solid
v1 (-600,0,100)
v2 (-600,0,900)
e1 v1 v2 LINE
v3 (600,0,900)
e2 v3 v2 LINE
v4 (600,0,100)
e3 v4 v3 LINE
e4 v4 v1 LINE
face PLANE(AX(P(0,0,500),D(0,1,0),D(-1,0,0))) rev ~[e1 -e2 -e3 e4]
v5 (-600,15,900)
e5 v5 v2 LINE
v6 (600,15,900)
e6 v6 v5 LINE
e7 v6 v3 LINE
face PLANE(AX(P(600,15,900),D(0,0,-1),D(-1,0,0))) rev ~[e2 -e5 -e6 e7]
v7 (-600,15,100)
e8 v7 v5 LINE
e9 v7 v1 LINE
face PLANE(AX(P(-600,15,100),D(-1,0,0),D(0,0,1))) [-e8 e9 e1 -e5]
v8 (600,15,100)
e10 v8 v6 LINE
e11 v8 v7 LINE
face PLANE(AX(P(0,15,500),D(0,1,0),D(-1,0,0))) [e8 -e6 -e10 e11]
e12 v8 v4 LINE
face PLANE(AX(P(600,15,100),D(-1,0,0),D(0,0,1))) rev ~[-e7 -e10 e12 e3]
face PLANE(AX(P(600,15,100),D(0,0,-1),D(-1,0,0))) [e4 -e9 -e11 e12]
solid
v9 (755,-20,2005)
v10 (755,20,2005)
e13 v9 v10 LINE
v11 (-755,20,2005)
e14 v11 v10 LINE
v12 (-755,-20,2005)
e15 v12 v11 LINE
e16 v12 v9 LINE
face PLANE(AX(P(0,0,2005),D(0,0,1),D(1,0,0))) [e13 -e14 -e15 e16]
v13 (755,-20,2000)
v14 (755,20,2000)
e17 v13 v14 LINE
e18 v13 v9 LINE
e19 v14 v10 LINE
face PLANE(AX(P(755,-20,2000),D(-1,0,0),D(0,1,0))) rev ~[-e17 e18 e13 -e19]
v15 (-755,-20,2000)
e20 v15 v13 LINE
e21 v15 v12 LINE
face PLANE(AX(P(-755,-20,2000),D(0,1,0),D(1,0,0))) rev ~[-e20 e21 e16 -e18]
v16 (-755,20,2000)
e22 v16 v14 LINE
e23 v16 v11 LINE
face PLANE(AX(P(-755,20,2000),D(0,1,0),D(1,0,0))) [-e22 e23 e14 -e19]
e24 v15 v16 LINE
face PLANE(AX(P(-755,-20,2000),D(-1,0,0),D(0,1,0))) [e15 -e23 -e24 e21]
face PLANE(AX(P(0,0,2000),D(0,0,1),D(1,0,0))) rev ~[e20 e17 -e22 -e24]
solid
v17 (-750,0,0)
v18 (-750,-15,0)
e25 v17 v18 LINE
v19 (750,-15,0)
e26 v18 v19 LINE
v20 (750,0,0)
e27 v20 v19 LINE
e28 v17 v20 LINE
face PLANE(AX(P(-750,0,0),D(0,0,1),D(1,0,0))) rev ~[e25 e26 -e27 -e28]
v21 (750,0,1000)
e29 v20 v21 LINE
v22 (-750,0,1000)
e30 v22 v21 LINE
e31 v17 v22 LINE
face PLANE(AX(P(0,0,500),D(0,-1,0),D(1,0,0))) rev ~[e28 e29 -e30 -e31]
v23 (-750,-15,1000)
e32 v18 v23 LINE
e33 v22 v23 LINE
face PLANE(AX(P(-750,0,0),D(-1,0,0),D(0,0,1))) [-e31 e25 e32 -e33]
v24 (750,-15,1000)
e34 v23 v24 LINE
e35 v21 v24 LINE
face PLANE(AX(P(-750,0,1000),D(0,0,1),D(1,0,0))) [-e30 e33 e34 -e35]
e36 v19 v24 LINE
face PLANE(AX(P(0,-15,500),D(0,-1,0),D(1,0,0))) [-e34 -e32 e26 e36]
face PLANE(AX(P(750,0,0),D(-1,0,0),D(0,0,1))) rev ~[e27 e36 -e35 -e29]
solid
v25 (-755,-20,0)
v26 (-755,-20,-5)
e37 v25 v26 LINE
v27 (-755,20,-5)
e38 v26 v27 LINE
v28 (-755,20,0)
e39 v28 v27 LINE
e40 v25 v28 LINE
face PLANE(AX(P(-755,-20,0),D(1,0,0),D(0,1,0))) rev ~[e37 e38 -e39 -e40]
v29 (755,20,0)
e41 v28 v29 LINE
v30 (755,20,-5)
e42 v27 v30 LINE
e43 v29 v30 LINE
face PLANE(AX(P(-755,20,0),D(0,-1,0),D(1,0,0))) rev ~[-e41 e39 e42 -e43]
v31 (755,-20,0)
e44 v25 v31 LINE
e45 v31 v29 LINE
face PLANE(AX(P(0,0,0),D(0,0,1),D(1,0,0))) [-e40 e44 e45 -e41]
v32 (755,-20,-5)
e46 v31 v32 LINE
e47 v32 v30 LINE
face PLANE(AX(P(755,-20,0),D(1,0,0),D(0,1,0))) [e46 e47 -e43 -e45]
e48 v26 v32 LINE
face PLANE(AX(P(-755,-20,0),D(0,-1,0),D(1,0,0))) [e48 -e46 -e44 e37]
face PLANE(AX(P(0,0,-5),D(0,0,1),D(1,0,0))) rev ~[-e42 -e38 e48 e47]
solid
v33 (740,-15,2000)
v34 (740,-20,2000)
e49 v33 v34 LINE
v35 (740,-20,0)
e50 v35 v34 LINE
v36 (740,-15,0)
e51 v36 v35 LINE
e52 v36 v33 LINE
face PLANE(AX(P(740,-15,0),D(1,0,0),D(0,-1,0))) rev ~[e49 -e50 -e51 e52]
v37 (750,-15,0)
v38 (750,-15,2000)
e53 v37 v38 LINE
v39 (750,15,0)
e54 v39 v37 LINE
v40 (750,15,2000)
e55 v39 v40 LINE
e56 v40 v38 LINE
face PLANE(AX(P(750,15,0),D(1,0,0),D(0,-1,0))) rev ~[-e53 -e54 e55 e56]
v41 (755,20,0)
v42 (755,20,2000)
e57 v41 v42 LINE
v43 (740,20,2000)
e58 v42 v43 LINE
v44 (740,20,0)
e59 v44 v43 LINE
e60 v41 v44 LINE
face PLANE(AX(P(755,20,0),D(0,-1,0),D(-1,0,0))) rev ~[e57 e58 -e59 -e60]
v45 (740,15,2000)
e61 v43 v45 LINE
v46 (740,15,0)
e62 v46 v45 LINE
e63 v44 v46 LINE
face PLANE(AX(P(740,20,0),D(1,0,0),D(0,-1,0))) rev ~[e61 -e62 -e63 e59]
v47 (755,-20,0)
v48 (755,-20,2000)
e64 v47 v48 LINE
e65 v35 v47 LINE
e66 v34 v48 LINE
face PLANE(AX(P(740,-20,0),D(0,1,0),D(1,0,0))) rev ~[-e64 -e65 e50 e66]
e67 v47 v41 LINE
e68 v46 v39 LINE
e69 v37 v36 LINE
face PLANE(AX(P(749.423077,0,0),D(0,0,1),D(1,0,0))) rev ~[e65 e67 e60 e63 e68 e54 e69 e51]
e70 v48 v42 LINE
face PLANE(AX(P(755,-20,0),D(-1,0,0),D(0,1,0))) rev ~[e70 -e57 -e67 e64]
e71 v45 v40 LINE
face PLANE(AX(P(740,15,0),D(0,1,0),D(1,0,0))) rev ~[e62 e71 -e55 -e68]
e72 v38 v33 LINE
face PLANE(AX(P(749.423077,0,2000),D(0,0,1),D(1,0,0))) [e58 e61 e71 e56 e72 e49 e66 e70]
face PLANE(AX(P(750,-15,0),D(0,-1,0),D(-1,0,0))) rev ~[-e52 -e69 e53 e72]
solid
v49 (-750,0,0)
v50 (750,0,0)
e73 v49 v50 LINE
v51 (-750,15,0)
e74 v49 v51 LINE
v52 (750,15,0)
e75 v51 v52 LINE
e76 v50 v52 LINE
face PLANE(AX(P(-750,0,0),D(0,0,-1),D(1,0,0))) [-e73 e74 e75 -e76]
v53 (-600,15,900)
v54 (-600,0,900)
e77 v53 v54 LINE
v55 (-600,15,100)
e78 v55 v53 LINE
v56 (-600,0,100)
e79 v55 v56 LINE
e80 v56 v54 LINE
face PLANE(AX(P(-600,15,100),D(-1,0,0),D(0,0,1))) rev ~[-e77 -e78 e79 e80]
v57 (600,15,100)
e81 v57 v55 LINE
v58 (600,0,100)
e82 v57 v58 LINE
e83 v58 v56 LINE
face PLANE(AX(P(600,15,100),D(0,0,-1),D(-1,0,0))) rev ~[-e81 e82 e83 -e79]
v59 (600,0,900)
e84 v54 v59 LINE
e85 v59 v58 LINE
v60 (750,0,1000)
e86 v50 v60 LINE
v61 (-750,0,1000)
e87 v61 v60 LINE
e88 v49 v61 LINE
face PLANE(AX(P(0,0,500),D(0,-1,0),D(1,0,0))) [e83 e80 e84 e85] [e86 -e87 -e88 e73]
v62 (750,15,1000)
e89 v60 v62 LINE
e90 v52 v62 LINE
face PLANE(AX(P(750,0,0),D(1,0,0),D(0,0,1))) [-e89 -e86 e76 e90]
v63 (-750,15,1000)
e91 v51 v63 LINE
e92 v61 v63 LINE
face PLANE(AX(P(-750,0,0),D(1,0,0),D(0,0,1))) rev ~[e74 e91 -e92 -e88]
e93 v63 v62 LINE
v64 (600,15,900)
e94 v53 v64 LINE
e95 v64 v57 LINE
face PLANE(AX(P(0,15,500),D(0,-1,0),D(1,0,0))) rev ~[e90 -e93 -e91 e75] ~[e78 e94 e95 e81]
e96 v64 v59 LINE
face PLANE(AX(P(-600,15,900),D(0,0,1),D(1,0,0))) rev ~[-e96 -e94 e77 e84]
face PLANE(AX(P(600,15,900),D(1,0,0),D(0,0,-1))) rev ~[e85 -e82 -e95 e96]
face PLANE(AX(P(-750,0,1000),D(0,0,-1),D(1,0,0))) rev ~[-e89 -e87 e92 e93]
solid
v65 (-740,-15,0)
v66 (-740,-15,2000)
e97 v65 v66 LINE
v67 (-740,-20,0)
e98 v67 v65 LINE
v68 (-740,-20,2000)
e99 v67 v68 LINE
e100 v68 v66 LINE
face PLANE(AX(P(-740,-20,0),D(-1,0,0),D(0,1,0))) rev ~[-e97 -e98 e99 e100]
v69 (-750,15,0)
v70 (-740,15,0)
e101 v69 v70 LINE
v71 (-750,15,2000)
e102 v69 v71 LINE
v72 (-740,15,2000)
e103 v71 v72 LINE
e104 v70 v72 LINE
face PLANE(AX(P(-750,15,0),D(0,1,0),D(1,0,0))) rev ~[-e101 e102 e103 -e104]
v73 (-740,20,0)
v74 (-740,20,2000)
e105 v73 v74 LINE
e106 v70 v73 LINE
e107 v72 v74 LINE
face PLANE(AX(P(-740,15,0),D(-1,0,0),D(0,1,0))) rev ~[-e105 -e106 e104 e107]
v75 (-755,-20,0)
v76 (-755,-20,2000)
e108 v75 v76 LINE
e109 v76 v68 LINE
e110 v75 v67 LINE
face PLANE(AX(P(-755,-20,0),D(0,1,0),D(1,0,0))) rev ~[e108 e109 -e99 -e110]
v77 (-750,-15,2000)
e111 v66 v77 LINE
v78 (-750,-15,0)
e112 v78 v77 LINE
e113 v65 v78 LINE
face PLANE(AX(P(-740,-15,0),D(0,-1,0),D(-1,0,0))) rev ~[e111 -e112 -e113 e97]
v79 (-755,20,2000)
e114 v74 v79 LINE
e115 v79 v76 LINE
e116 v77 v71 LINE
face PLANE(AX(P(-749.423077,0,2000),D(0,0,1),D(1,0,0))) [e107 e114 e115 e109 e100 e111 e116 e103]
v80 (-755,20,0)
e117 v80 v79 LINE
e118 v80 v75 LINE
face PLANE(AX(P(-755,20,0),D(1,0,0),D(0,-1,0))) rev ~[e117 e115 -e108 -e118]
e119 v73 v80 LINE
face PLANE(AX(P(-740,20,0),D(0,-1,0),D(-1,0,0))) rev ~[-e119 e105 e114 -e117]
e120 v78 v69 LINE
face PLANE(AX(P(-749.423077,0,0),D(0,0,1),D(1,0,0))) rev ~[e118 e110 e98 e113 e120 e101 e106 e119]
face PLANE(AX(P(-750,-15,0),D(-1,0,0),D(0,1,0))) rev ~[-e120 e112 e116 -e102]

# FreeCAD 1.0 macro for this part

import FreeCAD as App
import Part
import Sketcher
Q = App.Units.Quantity


def add_polygon(sketch, points):
    """Adds a closed chain of lines whose ends are joined by coincident constraints."""
    first, n = sketch.GeometryCount, len(points)
    for a, b in zip(points, points[1:] + points[:1]):
        sketch.addGeometry(Part.LineSegment(App.Vector(*a, 0), App.Vector(*b, 0)), False)
    for i in range(n):
        sketch.addConstraint(Sketcher.Constraint("Coincident", first + i, 2, first + (i + 1) % n, 1))

doc = App.newDocument("Part")
body = doc.addObject("PartDesign::Body", "Body")
body.AllowCompound = True

sketch1 = body.newObject("Sketcher::SketchObject", "Sketch")
sketch1.AttachmentSupport = (doc.getObject("XY_Plane"), [""])
sketch1.MapMode = "FlatFace"
add_polygon(sketch1, [(-750, -15), (-750, 15), (-740, 15), (-740, 20), (-755, 20), (-755, -20), (-740, -20), (-740, -15)])
add_polygon(sketch1, [(750, -15), (740, -15), (740, -20), (755, -20), (755, 20), (740, 20), (740, 15), (750, 15)])
sketch1.addConstraint([
    Sketcher.Constraint("Vertical", 0),
    Sketcher.Constraint("Horizontal", 1),
    Sketcher.Constraint("Vertical", 2),
    Sketcher.Constraint("Horizontal", 3),
    Sketcher.Constraint("Vertical", 4),
    Sketcher.Constraint("Horizontal", 5),
    Sketcher.Constraint("Vertical", 6),
    Sketcher.Constraint("Horizontal", 7),
    Sketcher.Constraint("Horizontal", 8),
    Sketcher.Constraint("Vertical", 9),
    Sketcher.Constraint("Horizontal", 10),
    Sketcher.Constraint("Vertical", 11),
    Sketcher.Constraint("Horizontal", 12),
    Sketcher.Constraint("Vertical", 13),
    Sketcher.Constraint("Horizontal", 14),
    Sketcher.Constraint("Vertical", 15),
    Sketcher.Constraint("Symmetric", 1, 2, 8, 2, -1, 1),
    Sketcher.Constraint("Symmetric", 3, 2, 10, 2, -1, 1),
    Sketcher.Constraint("Symmetric", 5, 2, 12, 2, -1, 1),
    Sketcher.Constraint("Symmetric", 7, 2, 14, 2, -1, 1),
    Sketcher.Constraint("Symmetric", 6, 2, 8, 2, -2),
    Sketcher.Constraint("Horizontal", 5, 2, 9, 2),
    Sketcher.Constraint("DistanceX", 1, 1, 1, 2, Q("10 mm")),
    Sketcher.Constraint("DistanceX", 3, 2, 3, 1, Q("15 mm")),
    Sketcher.Constraint("DistanceY", 0, 1, 0, 2, Q("30 mm")),
    Sketcher.Constraint("DistanceY", 2, 1, 2, 2, Q("5 mm")),
    Sketcher.Constraint("DistanceX", 0, 2, -1, 1, Q("750 mm")),
])
pad1 = body.newObject("PartDesign::Pad", "Pad")
pad1.Profile = sketch1
pad1.Length = 2000
body2 = doc.addObject("PartDesign::Body", "Body001")

sketch2 = body2.newObject("Sketcher::SketchObject", "Sketch001")
sketch2.AttachmentSupport = (doc.getObject("XZ_Plane001"), [""])
sketch2.MapMode = "FlatFace"
add_polygon(sketch2, [(-750, 1000), (-750, 0), (750, 0), (750, 1000)])
sketch2.addConstraint([
    Sketcher.Constraint("Vertical", 0),
    Sketcher.Constraint("Horizontal", 1),
    Sketcher.Constraint("Vertical", 2),
    Sketcher.Constraint("Horizontal", 3),
    Sketcher.Constraint("Symmetric", 0, 2, 1, 2, -1, 1),
    Sketcher.Constraint("DistanceX", 1, 1, 1, 2, Q("1500 mm")),
    Sketcher.Constraint("DistanceY", 0, 2, 0, 1, Q("1000 mm")),
])
pad2 = body2.newObject("PartDesign::Pad", "Pad001")
pad2.Profile = sketch2
pad2.Length = 15
body3 = doc.addObject("PartDesign::Body", "Body002")

sketch3 = body3.newObject("Sketcher::SketchObject", "Sketch002")
sketch3.AttachmentSupport = (doc.getObject("XZ_Plane002"), [""])
sketch3.MapMode = "FlatFace"
add_polygon(sketch3, [(-750, 1000), (-750, 0), (750, 0), (750, 1000)])
sketch3.addConstraint([
    Sketcher.Constraint("Vertical", 0),
    Sketcher.Constraint("Horizontal", 1),
    Sketcher.Constraint("Vertical", 2),
    Sketcher.Constraint("Horizontal", 3),
    Sketcher.Constraint("Symmetric", 0, 2, 1, 2, -1, 1),
    Sketcher.Constraint("DistanceX", 1, 1, 1, 2, Q("1500 mm")),
    Sketcher.Constraint("DistanceY", 0, 2, 0, 1, Q("1000 mm")),
])
pad3 = body3.newObject("PartDesign::Pad", "Pad002")
pad3.Profile = sketch3
pad3.Length = 15
pad3.Reversed = True

sketch4 = body3.newObject("Sketcher::SketchObject", "Sketch003")
sketch4.AttachmentSupport = (doc.getObject("XZ_Plane002"), [""])
sketch4.MapMode = "FlatFace"
sketch4.AttachmentOffset = App.Placement(App.Vector(0, 0, -15), App.Rotation())
add_polygon(sketch4, [(600, 100), (-600, 100), (-600, 900), (600, 900)])
sketch4.addConstraint([
    Sketcher.Constraint("Horizontal", 0),
    Sketcher.Constraint("Vertical", 1),
    Sketcher.Constraint("Horizontal", 2),
    Sketcher.Constraint("Vertical", 3),
    Sketcher.Constraint("DistanceX", 0, 2, 0, 1, Q("1200 mm")),
    Sketcher.Constraint("DistanceY", 1, 1, 1, 2, Q("800 mm")),
    Sketcher.Constraint("DistanceX", 0, 2, -1, 1, Q("600 mm")),
    Sketcher.Constraint("DistanceY", -1, 1, 0, 2, Q("100 mm")),
])
pocket1 = body3.newObject("PartDesign::Pocket", "Pocket")
pocket1.Profile = sketch4
pocket1.Length = 15
pocket1.Reversed = True
body4 = doc.addObject("PartDesign::Body", "Body003")

sketch5 = body4.newObject("Sketcher::SketchObject", "Sketch004")
sketch5.AttachmentSupport = (doc.getObject("XY_Plane003"), [""])
sketch5.MapMode = "FlatFace"
sketch5.AttachmentOffset = App.Placement(App.Vector(0, 0, 2000), App.Rotation())
add_polygon(sketch5, [(-755, 20), (-755, -20), (755, -20), (755, 20)])
sketch5.addConstraint([
    Sketcher.Constraint("Vertical", 0),
    Sketcher.Constraint("Horizontal", 1),
    Sketcher.Constraint("Vertical", 2),
    Sketcher.Constraint("Horizontal", 3),
    Sketcher.Constraint("Symmetric", 0, 2, 2, 2, -1, 1),
    Sketcher.Constraint("DistanceX", 1, 1, 1, 2, Q("1510 mm")),
    Sketcher.Constraint("DistanceY", 0, 2, 0, 1, Q("40 mm")),
])
pad4 = body4.newObject("PartDesign::Pad", "Pad003")
pad4.Profile = sketch5
pad4.Length = 5
body5 = doc.addObject("PartDesign::Body", "Body004")

sketch6 = body5.newObject("Sketcher::SketchObject", "Sketch005")
sketch6.AttachmentSupport = (doc.getObject("XY_Plane004"), [""])
sketch6.MapMode = "FlatFace"
add_polygon(sketch6, [(-755, 20), (-755, -20), (755, -20), (755, 20)])
sketch6.addConstraint([
    Sketcher.Constraint("Vertical", 0),
    Sketcher.Constraint("Horizontal", 1),
    Sketcher.Constraint("Vertical", 2),
    Sketcher.Constraint("Horizontal", 3),
    Sketcher.Constraint("Symmetric", 0, 2, 2, 2, -1, 1),
    Sketcher.Constraint("DistanceX", 1, 1, 1, 2, Q("1510 mm")),
    Sketcher.Constraint("DistanceY", 0, 2, 0, 1, Q("40 mm")),
])
pad5 = body5.newObject("PartDesign::Pad", "Pad004")
pad5.Profile = sketch6
pad5.Length = 5
pad5.Reversed = True
body6 = doc.addObject("PartDesign::Body", "Body005")

sketch7 = body6.newObject("Sketcher::SketchObject", "Sketch006")
sketch7.AttachmentSupport = (doc.getObject("XZ_Plane005"), [""])
sketch7.MapMode = "FlatFace"
sketch7.AttachmentOffset = App.Placement(App.Vector(0, 0, -15), App.Rotation())
add_polygon(sketch7, [(600, 900), (600, 100), (-600, 100), (-600, 900)])
sketch7.addConstraint([
    Sketcher.Constraint("Vertical", 0),
    Sketcher.Constraint("Horizontal", 1),
    Sketcher.Constraint("Vertical", 2),
    Sketcher.Constraint("Horizontal", 3),
    Sketcher.Constraint("DistanceX", 1, 2, 1, 1, Q("1200 mm")),
    Sketcher.Constraint("DistanceY", 0, 2, 0, 1, Q("800 mm")),
    Sketcher.Constraint("DistanceX", -1, 1, 0, 2, Q("600 mm")),
    Sketcher.Constraint("DistanceY", -1, 1, 0, 2, Q("100 mm")),
])
pad6 = body6.newObject("PartDesign::Pad", "Pad005")
pad6.Profile = sketch7
pad6.Length = 15

doc.recompute()
